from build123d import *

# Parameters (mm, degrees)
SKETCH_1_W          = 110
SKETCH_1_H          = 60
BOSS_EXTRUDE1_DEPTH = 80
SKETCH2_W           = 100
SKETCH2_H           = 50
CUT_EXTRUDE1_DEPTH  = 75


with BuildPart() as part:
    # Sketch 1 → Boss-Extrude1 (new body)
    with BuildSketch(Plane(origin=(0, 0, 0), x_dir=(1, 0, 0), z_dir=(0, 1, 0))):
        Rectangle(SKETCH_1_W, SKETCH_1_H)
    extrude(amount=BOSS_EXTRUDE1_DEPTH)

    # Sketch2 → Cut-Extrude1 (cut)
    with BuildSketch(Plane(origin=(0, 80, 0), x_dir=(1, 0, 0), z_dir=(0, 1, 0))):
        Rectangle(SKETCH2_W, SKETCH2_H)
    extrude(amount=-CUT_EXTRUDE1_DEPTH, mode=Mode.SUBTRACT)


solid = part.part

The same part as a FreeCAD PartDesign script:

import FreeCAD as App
import Part
import Sketcher
from FreeCAD import Vector

doc = App.newDocument("Part")
body = doc.addObject("PartDesign::Body", "Body")

sketch1 = body.newObject("Sketcher::SketchObject", "Sketch")
sketch1.AttachmentSupport = (doc.getObject("XZ_Plane"), [""])
sketch1.MapMode = "FlatFace"
sketch1.addGeometry([
    Part.LineSegment(Vector(-55, -30, 0), Vector(-55, 30, 0)),
    Part.LineSegment(Vector(-55, 30, 0), Vector(55, 30, 0)),
    Part.LineSegment(Vector(55, 30, 0), Vector(55, -30, 0)),
    Part.LineSegment(Vector(55, -30, 0), Vector(-55, -30, 0)),
], False)
sketch1.addConstraint([
    Sketcher.Constraint("Coincident", 0, 2, 1, 1),
    Sketcher.Constraint("Coincident", 1, 2, 2, 1),
    Sketcher.Constraint("Coincident", 2, 2, 3, 1),
    Sketcher.Constraint("Coincident", 3, 2, 0, 1),
    Sketcher.Constraint("Vertical", 0),
    Sketcher.Constraint("Horizontal", 1),
    Sketcher.Constraint("Vertical", 2),
    Sketcher.Constraint("Horizontal", 3),
    Sketcher.Constraint("Symmetric", 0, 2, 2, 2, -1, 1),
    Sketcher.Constraint("DistanceX", 1, 1, 1, 2, 110.0),
    Sketcher.Constraint("DistanceY", 0, 1, 0, 2, 60.0),
])
pad1 = body.newObject("PartDesign::Pad", "Pad")
pad1.Profile = sketch1
pad1.Length = 80
pad1.Reversed = True

sketch2 = body.newObject("Sketcher::SketchObject", "Sketch001")
sketch2.AttachmentSupport = (doc.getObject("XZ_Plane"), [""])
sketch2.MapMode = "FlatFace"
sketch2.AttachmentOffset = App.Placement(Vector(0, 0, -80), App.Rotation())
sketch2.addGeometry([
    Part.LineSegment(Vector(-50, -25, 0), Vector(-50, 25, 0)),
    Part.LineSegment(Vector(-50, 25, 0), Vector(50, 25, 0)),
    Part.LineSegment(Vector(50, 25, 0), Vector(50, -25, 0)),
    Part.LineSegment(Vector(50, -25, 0), Vector(-50, -25, 0)),
], False)
sketch2.addConstraint([
    Sketcher.Constraint("Coincident", 0, 2, 1, 1),
    Sketcher.Constraint("Coincident", 1, 2, 2, 1),
    Sketcher.Constraint("Coincident", 2, 2, 3, 1),
    Sketcher.Constraint("Coincident", 3, 2, 0, 1),
    Sketcher.Constraint("Vertical", 0),
    Sketcher.Constraint("Horizontal", 1),
    Sketcher.Constraint("Vertical", 2),
    Sketcher.Constraint("Horizontal", 3),
    Sketcher.Constraint("Symmetric", 0, 2, 2, 2, -1, 1),
    Sketcher.Constraint("DistanceX", 1, 1, 1, 2, 100.0),
    Sketcher.Constraint("DistanceY", 0, 1, 0, 2, 50.0),
])
pocket1 = body.newObject("PartDesign::Pocket", "Pocket")
pocket1.Profile = sketch2
pocket1.Length = 75
pocket1.Reversed = True

doc.recompute()
